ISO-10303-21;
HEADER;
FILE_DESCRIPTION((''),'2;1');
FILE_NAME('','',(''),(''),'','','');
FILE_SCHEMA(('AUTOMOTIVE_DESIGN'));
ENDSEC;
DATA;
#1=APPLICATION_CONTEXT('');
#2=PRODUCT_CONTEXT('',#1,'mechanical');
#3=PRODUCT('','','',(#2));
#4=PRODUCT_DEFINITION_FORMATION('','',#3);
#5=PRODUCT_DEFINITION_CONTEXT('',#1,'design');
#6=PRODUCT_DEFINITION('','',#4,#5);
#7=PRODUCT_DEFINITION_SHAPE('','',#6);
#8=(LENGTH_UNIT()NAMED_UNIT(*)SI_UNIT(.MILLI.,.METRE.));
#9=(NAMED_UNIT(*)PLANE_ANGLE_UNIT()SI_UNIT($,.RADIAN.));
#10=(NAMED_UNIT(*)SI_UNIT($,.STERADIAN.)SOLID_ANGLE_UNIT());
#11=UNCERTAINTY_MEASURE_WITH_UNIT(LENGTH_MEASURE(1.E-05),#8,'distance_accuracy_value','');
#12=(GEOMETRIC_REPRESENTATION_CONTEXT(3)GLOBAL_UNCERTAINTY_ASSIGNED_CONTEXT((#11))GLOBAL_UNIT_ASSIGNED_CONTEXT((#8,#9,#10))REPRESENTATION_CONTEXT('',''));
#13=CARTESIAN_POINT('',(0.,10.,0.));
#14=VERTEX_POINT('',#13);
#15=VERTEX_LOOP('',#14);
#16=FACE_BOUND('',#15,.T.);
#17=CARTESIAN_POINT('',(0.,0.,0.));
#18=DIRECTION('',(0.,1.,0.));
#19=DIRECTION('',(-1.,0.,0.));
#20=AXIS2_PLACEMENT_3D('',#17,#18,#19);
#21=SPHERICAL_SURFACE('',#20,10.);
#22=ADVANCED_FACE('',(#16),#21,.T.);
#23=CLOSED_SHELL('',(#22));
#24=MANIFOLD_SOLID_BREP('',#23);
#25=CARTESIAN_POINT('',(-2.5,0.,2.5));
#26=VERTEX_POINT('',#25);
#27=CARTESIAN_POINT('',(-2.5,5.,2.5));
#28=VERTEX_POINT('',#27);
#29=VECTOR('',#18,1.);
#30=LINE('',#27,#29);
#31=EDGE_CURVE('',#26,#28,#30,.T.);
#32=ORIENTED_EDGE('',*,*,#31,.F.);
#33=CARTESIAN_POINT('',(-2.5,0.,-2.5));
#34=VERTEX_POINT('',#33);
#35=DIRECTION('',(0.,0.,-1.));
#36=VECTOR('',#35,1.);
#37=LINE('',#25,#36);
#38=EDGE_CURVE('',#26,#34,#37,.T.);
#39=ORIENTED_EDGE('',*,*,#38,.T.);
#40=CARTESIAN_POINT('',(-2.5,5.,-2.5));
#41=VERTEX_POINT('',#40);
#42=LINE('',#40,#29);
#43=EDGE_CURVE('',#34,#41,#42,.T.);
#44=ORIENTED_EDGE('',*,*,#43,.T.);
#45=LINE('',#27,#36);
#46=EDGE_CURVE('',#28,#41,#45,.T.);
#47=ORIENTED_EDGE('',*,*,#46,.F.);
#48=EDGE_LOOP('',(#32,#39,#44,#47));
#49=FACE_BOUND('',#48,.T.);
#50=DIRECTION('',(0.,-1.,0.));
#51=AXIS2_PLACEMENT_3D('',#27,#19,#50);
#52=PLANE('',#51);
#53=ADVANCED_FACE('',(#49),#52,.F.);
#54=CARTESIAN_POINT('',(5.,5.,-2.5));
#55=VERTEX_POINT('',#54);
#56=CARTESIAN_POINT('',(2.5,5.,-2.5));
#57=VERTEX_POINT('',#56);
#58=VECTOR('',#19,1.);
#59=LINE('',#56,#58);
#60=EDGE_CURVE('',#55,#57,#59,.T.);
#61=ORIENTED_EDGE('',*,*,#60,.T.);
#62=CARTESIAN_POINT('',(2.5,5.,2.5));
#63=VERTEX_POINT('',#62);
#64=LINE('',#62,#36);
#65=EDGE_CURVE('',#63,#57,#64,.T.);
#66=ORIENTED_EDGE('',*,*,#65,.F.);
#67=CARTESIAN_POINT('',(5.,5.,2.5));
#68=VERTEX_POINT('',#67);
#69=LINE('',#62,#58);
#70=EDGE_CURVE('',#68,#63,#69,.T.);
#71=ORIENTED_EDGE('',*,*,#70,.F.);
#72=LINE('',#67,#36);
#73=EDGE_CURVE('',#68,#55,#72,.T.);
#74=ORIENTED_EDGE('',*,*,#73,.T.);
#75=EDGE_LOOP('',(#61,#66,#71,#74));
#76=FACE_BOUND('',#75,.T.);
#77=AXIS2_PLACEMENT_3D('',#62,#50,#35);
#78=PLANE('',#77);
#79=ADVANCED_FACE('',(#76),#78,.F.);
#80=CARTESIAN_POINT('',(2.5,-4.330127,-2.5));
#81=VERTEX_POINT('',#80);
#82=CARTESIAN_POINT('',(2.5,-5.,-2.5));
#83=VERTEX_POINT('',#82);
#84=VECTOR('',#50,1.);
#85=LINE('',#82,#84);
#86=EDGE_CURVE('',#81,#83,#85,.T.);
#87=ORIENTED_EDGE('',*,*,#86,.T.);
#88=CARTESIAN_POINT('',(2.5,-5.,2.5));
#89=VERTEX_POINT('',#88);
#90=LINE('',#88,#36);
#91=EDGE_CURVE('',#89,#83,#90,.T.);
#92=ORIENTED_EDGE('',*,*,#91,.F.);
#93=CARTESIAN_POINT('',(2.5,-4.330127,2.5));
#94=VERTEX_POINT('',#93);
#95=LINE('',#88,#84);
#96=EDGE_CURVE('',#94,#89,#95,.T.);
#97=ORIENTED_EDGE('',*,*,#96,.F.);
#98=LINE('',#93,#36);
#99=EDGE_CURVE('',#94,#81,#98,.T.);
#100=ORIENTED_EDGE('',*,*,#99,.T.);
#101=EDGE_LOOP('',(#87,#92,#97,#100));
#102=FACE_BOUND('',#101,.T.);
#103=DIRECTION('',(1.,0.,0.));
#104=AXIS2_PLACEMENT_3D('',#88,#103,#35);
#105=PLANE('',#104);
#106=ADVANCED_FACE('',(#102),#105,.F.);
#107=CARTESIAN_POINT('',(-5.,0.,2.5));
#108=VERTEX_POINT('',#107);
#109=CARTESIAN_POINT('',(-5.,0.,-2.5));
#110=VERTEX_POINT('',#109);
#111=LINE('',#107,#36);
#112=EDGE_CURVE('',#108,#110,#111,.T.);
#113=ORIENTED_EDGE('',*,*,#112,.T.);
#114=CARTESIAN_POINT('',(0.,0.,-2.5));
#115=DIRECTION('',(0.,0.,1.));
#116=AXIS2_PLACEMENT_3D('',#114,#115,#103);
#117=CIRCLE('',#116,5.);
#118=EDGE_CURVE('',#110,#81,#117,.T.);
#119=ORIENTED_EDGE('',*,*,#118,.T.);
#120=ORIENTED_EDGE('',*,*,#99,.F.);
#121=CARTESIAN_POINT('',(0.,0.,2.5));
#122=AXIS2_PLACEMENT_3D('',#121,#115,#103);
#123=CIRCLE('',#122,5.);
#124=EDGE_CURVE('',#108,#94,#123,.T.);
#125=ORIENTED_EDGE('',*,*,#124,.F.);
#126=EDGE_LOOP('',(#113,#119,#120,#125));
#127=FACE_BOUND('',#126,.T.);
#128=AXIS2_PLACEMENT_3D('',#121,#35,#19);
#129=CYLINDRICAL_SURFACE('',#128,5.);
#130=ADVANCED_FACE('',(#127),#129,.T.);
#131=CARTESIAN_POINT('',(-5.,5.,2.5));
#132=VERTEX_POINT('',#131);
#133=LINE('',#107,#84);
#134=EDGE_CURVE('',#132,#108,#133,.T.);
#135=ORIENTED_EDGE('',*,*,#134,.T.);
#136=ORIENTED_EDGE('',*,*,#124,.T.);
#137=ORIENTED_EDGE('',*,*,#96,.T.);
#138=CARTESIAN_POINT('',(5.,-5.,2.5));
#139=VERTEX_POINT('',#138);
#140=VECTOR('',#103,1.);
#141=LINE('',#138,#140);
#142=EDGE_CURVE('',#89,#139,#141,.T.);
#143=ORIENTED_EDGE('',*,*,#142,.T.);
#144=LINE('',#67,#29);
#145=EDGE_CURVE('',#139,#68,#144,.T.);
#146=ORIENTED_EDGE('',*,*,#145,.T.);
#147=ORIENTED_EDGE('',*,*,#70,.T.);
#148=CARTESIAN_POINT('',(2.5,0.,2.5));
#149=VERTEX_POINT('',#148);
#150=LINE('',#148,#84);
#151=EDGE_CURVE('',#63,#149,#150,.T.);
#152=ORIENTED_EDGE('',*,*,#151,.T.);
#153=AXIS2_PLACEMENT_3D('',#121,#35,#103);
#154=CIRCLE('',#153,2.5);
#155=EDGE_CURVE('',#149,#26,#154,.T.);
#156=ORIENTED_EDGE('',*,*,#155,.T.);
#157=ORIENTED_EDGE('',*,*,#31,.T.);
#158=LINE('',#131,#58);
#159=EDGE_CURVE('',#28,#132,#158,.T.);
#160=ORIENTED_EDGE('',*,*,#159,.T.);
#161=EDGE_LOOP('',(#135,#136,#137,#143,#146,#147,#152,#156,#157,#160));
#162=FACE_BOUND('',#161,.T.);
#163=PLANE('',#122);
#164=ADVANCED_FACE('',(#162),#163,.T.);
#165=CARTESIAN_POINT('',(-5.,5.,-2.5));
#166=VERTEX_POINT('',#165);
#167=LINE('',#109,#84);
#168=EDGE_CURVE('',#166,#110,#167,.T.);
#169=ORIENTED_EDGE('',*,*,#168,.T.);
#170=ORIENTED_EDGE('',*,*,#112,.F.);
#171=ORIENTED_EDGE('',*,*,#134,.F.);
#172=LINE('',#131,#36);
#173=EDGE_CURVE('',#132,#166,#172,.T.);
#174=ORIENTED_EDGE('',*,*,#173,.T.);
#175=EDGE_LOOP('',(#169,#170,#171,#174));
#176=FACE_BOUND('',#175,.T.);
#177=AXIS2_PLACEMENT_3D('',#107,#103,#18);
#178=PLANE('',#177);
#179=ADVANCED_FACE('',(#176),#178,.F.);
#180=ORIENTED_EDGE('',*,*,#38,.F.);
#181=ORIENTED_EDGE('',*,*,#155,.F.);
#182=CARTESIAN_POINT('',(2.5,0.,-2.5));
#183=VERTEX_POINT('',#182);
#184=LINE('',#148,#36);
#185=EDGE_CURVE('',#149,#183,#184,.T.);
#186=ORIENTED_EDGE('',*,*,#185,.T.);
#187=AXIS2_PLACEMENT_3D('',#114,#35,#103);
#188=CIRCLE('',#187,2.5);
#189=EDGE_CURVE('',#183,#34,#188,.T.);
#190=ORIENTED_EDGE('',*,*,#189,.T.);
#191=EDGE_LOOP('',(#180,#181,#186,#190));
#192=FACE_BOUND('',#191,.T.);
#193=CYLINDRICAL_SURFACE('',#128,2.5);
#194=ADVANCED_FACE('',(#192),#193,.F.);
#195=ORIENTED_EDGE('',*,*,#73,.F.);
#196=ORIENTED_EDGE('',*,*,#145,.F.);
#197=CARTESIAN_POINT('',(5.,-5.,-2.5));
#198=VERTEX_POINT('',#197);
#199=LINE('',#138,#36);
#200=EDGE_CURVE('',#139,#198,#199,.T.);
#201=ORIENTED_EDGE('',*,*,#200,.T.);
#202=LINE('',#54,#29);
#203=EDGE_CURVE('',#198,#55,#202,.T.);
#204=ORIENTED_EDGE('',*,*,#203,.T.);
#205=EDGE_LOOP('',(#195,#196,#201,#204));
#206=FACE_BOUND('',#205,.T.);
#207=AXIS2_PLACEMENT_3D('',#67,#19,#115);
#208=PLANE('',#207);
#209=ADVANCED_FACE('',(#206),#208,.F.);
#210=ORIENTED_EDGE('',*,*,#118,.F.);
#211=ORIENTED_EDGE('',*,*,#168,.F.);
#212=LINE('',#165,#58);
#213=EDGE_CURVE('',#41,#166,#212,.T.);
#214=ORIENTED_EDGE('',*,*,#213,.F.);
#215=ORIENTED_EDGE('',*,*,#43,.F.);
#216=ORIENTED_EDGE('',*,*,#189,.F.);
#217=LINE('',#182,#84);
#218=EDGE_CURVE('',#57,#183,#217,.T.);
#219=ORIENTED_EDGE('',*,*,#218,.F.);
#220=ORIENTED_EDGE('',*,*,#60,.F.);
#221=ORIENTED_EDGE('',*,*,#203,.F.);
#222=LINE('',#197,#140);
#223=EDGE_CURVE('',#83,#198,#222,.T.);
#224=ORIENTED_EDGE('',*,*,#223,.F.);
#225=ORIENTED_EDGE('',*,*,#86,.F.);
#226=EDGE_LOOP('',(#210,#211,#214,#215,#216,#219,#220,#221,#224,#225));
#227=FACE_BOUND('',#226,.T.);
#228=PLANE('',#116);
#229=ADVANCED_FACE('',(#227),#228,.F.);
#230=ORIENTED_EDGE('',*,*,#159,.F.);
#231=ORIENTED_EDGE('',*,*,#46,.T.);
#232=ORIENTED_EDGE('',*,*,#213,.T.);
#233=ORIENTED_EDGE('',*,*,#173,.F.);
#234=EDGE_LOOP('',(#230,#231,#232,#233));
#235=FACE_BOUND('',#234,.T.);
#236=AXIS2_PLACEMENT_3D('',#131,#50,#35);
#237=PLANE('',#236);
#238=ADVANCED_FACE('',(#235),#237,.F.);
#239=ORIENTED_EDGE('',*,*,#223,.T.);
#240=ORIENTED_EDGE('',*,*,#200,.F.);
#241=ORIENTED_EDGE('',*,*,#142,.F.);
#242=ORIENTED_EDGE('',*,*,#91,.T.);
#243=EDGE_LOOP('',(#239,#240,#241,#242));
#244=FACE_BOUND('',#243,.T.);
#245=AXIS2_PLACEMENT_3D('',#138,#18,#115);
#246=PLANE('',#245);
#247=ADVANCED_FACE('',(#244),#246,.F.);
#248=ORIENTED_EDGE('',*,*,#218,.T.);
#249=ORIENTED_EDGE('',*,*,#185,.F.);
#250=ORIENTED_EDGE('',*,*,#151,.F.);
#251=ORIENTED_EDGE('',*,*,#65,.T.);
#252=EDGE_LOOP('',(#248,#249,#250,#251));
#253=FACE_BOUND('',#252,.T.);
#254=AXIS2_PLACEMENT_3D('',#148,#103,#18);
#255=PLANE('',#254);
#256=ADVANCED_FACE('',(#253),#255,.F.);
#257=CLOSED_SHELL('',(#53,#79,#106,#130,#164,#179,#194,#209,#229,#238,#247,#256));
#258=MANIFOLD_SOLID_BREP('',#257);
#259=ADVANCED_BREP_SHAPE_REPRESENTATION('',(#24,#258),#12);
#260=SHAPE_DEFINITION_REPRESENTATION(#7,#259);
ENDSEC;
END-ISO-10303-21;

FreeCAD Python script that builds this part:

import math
import FreeCAD as App
import Part
import Sketcher

V = App.Vector

doc = App.newDocument("Part")
params = doc.addObject("Spreadsheet::Sheet", "Params")
for row, (alias, value) in enumerate([
    ("sketch1_radius", "5 mm"),
    ("sketch1_radius2", "2.5 mm"),
    ("sketch1_height", "5 mm"),
    ("pad1_length", "5 mm"),
    ("sketch2_radius", "10 mm"),
    ("revolution_angle", "360 deg"),
], start=1):
    params.set(f"A{row}", alias)
    params.set(f"B{row}", "=" + value)
    params.setAlias(f"B{row}", alias)

body = doc.addObject("PartDesign::Body", "Body")

# Sketch on XY plane
sketch1 = body.newObject("Sketcher::SketchObject", "Sketch")
sketch1.AttachmentSupport = (doc.getObject("XY_Plane"), [""])
sketch1.MapMode = "FlatFace"
sketch1.addGeometry(Part.LineSegment(V(-5, 5, 0), V(-5, 0, 0)), False)
sketch1.addGeometry(Part.ArcOfCircle(Part.Circle(V(0, 0, 0), V(0, 0, 1), 5), math.radians(180), math.radians(300)), False)
sketch1.addGeometry(Part.LineSegment(V(2.5, -4.3, 0), V(2.5, -5, 0)), False)
sketch1.addGeometry(Part.LineSegment(V(2.5, -5, 0), V(5, -5, 0)), False)
sketch1.addGeometry(Part.LineSegment(V(5, -5, 0), V(5, 5, 0)), False)
sketch1.addGeometry(Part.LineSegment(V(5, 5, 0), V(2.5, 5, 0)), False)
sketch1.addGeometry(Part.LineSegment(V(2.5, 5, 0), V(2.5, 0, 0)), False)
sketch1.addGeometry(Part.ArcOfCircle(Part.Circle(V(0, 0, 0), V(0, 0, 1), 2.5), math.radians(180), math.radians(360)), False)
sketch1.addGeometry(Part.LineSegment(V(-2.5, 0, 0), V(-2.5, 5, 0)), False)
sketch1.addGeometry(Part.LineSegment(V(-2.5, 5, 0), V(-5, 5, 0)), False)
sketch1.addConstraint(Sketcher.Constraint("Tangent", 0, 2, 1, 1))
sketch1.addConstraint(Sketcher.Constraint("Coincident", 1, 2, 2, 1))
sketch1.addConstraint(Sketcher.Constraint("Coincident", 2, 2, 3, 1))
sketch1.addConstraint(Sketcher.Constraint("Coincident", 3, 2, 4, 1))
sketch1.addConstraint(Sketcher.Constraint("Coincident", 4, 2, 5, 1))
sketch1.addConstraint(Sketcher.Constraint("Coincident", 5, 2, 6, 1))
sketch1.addConstraint(Sketcher.Constraint("Tangent", 6, 2, 7, 2))
sketch1.addConstraint(Sketcher.Constraint("Tangent", 7, 1, 8, 1))
sketch1.addConstraint(Sketcher.Constraint("Coincident", 8, 2, 9, 1))
sketch1.addConstraint(Sketcher.Constraint("Coincident", 9, 2, 0, 1))
sketch1.addConstraint(Sketcher.Constraint("Vertical", 0))
sketch1.addConstraint(Sketcher.Constraint("Vertical", 2))
sketch1.addConstraint(Sketcher.Constraint("Horizontal", 3))
sketch1.addConstraint(Sketcher.Constraint("Vertical", 4))
sketch1.addConstraint(Sketcher.Constraint("Horizontal", 5))
sketch1.addConstraint(Sketcher.Constraint("Vertical", 6))
sketch1.addConstraint(Sketcher.Constraint("Vertical", 8))
sketch1.addConstraint(Sketcher.Constraint("Horizontal", 9))
sketch1.addConstraint(Sketcher.Constraint("Coincident", 1, 3, -1, 1))
sketch1.addConstraint(Sketcher.Constraint("Coincident", 7, 3, -1, 1))
sketch1.addConstraint(Sketcher.Constraint("Symmetric", 2, 2, 8, 2, -1, 1))
sketch1.addConstraint(Sketcher.Constraint("Symmetric", 4, 2, 9, 2, -2))
sketch1.addConstraint(Sketcher.Constraint("Radius", 1, 5.0))
sketch1.addConstraint(Sketcher.Constraint("Radius", 7, 2.5))
sketch1.addConstraint(Sketcher.Constraint("DistanceY", 0, 2, 0, 1, 5.0))
sketch1.setExpression("Constraints[22]", "Params.sketch1_radius")
sketch1.setExpression("Constraints[23]", "Params.sketch1_radius2")
sketch1.setExpression("Constraints[24]", "Params.sketch1_height")
pad1 = body.newObject("PartDesign::Pad", "Pad")
pad1.Profile = sketch1
pad1.setExpression("Length", "Params.pad1_length")
pad1.Midplane = True
body2 = doc.addObject("PartDesign::Body", "Body001")

# Sketch on XY plane
sketch2 = body2.newObject("Sketcher::SketchObject", "Sketch001")
sketch2.AttachmentSupport = (doc.getObject("XY_Plane001"), [""])
sketch2.MapMode = "FlatFace"
sketch2.addGeometry(Part.LineSegment(V(0, -10, 0), V(0, 10, 0)), False)
sketch2.addGeometry(Part.ArcOfCircle(Part.Circle(V(0, 0, 0), V(0, 0, 1), 10), math.radians(90), math.radians(270)), False)
sketch2.addConstraint(Sketcher.Constraint("Coincident", 0, 1, 1, 2))
sketch2.addConstraint(Sketcher.Constraint("Coincident", 1, 1, 0, 2))
sketch2.addConstraint(Sketcher.Constraint("Vertical", 0))
sketch2.addConstraint(Sketcher.Constraint("Coincident", 1, 3, -1, 1))
sketch2.addConstraint(Sketcher.Constraint("PointOnObject", 0, 1, -2))
sketch2.addConstraint(Sketcher.Constraint("Radius", 1, 10.0))
sketch2.setExpression("Constraints[5]", "Params.sketch2_radius")
revolution = body2.newObject("PartDesign::Revolution", "Revolution")
revolution.Profile = sketch2
revolution.ReferenceAxis = (sketch2, ["V_Axis"])
revolution.setExpression("Angle", "Params.revolution_angle")

doc.recompute()
